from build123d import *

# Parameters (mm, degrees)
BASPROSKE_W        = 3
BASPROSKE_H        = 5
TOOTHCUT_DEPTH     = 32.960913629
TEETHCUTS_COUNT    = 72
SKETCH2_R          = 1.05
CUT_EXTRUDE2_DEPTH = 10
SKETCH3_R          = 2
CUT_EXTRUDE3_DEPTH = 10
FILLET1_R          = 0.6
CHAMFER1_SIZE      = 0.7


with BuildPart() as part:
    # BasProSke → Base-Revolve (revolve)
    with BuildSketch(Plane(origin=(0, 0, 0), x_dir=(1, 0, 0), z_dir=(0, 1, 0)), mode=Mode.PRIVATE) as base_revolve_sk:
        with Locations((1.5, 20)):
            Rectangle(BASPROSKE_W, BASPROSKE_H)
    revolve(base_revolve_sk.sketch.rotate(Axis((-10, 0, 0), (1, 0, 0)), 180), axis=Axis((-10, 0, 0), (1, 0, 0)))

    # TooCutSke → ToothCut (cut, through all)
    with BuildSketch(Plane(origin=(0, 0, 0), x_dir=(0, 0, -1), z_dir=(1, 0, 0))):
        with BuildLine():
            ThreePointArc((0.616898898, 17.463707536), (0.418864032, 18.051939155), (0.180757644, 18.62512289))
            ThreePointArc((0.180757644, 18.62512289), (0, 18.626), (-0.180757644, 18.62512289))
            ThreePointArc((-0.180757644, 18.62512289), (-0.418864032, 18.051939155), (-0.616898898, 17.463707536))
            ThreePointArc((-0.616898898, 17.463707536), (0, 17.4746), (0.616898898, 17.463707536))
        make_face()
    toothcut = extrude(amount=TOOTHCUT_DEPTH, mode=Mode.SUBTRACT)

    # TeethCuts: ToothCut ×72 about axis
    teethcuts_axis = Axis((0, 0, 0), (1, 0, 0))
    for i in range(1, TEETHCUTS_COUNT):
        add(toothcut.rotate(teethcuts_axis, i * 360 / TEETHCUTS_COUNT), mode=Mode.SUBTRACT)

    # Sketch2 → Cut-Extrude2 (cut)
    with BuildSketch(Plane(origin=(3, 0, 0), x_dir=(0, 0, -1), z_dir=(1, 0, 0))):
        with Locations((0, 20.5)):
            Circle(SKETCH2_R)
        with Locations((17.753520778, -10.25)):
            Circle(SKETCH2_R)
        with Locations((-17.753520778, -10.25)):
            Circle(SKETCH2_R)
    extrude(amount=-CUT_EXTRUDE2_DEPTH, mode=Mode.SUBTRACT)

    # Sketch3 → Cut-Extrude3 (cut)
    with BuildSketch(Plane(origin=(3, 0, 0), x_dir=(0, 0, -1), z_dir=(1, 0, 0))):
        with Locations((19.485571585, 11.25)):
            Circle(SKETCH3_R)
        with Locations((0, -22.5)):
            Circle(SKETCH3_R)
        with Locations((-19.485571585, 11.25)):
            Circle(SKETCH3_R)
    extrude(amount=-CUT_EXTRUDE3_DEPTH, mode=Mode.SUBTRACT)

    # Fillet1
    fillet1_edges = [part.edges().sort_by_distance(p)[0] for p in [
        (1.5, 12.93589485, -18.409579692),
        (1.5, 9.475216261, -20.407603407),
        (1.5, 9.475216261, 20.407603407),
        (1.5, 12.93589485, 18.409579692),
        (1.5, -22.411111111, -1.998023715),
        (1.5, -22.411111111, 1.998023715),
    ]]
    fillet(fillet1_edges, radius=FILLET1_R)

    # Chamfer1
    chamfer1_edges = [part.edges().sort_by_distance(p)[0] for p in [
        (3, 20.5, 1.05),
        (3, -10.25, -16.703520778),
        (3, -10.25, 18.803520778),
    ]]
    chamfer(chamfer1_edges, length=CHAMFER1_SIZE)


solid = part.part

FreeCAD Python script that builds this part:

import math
import FreeCAD as App
import Part
import Sketcher

V = App.Vector


def edges_at(feature, points):
    """Names of the edges that pass closest to the given points."""
    edges = feature.Shape.Edges
    near = lambda p: min(range(len(edges)), key=lambda i: edges[i].distToShape(Part.Vertex(*p))[0])
    return sorted({f"Edge{near(p) + 1}" for p in points})

doc = App.newDocument("Part")
body = doc.addObject("PartDesign::Body", "Body")

# Sketch on XZ plane
sketch1 = doc.addObject("Sketcher::SketchObject", "Sketch")
body.addObject(sketch1)
sketch1.AttachmentSupport = (doc.XZ_Plane, [""])
sketch1.MapMode = "FlatFace"
sketch1.addGeometry(Part.LineSegment(V(0, -22.5, 0), V(0, -17.5, 0)), False)
sketch1.addGeometry(Part.LineSegment(V(0, -17.5, 0), V(3, -17.5, 0)), False)
sketch1.addGeometry(Part.LineSegment(V(3, -17.5, 0), V(3, -22.5, 0)), False)
sketch1.addGeometry(Part.LineSegment(V(3, -22.5, 0), V(0, -22.5, 0)), False)
sketch1.addConstraint(Sketcher.Constraint("Coincident", 0, 2, 1, 1))
sketch1.addConstraint(Sketcher.Constraint("Coincident", 1, 2, 2, 1))
sketch1.addConstraint(Sketcher.Constraint("Coincident", 2, 2, 3, 1))
sketch1.addConstraint(Sketcher.Constraint("Coincident", 3, 2, 0, 1))
sketch1.addConstraint(Sketcher.Constraint("Vertical", 0))
sketch1.addConstraint(Sketcher.Constraint("Horizontal", 1))
sketch1.addConstraint(Sketcher.Constraint("Vertical", 2))
sketch1.addConstraint(Sketcher.Constraint("Horizontal", 3))
sketch1.addConstraint(Sketcher.Constraint("PointOnObject", 0, 2, -2))
sketch1.addConstraint(Sketcher.Constraint("DistanceX", 1, 1, 1, 2, 3.0))
sketch1.addConstraint(Sketcher.Constraint("DistanceY", 0, 1, 0, 2, 5.0))
sketch1.addConstraint(Sketcher.Constraint("DistanceY", 0, 2, -1, 1, 17.5))
revolution = doc.addObject("PartDesign::Revolution", "Revolution")
body.addObject(revolution)
revolution.Profile = sketch1
revolution.ReferenceAxis = (sketch1, ["H_Axis"])
revolution.Angle = 360

# Sketch on YZ plane
sketch2 = doc.addObject("Sketcher::SketchObject", "Sketch001")
body.addObject(sketch2)
sketch2.AttachmentSupport = (doc.YZ_Plane, [""])
sketch2.MapMode = "FlatFace"
sketch2.addGeometry(Part.ArcOfCircle(Part.Circle(V(14.887946, 8.006642, 0), V(0, 0, 1), 9), math.radians(-73.369662), math.radians(-65.465448)), False)
sketch2.addGeometry(Part.ArcOfCircle(Part.Circle(V(0.000004, 0, 0), V(0, 0, 1), 18.625996), math.radians(-0.556041), math.radians(0.556041)), False)
sketch2.addGeometry(Part.ArcOfCircle(Part.Circle(V(14.887946, -8.006642, 0), V(0, 0, 1), 9), math.radians(65.465448), math.radians(73.369662)), False)
sketch2.addGeometry(Part.ArcOfCircle(Part.Circle(V(0, 0, 0), V(0, 0, 1), 17.4746), math.radians(-2.023111), math.radians(2.023111)), False)
sketch2.addConstraint(Sketcher.Constraint("Coincident", 0, 2, 1, 1))
sketch2.addConstraint(Sketcher.Constraint("Coincident", 1, 2, 2, 1))
sketch2.addConstraint(Sketcher.Constraint("Coincident", 2, 2, 3, 2))
sketch2.addConstraint(Sketcher.Constraint("Coincident", 3, 1, 0, 1))
sketch2.addConstraint(Sketcher.Constraint("Coincident", 1, 3, -1, 1))
sketch2.addConstraint(Sketcher.Constraint("Coincident", 3, 3, -1, 1))
sketch2.addConstraint(Sketcher.Constraint("Equal", 0, 2))
sketch2.addConstraint(Sketcher.Constraint("Symmetric", 0, 3, 2, 3, -1))
sketch2.addConstraint(Sketcher.Constraint("Radius", 0, 9.0))
sketch2.addConstraint(Sketcher.Constraint("Radius", 3, 17.4746))
sketch2.addConstraint(Sketcher.Constraint("Radius", 1, 18.625996))
sketch2.addConstraint(Sketcher.Constraint("DistanceY", -1, 1, 2, 2, 0.616899))
sketch2.addConstraint(Sketcher.Constraint("DistanceY", 0, 2, 0, 3, 8.187399))
pocket1 = doc.addObject("PartDesign::Pocket", "Pocket")
body.addObject(pocket1)
pocket1.Profile = sketch2
pocket1.Type = "ThroughAll"
pocket1.Reversed = True
doc.recompute()

polarpattern = doc.addObject("PartDesign::PolarPattern", "PolarPattern")
body.addObject(polarpattern)
polarpattern.Originals = [pocket1]
polarpattern.Axis = (doc.X_Axis, [""])
polarpattern.Angle = 360
polarpattern.Occurrences = 72
body.Tip = polarpattern

# Sketch on YZ plane
sketch3 = doc.addObject("Sketcher::SketchObject", "Sketch002")
body.addObject(sketch3)
sketch3.AttachmentSupport = (doc.YZ_Plane, [""])
sketch3.MapMode = "FlatFace"
sketch3.AttachmentOffset = App.Placement(V(0, 0, 3), App.Rotation())
sketch3.addGeometry(Part.Circle(V(20.5, 0, 0), V(0, 0, 1), 1.05), False)
sketch3.addGeometry(Part.Circle(V(-10.25, -17.753521, 0), V(0, 0, 1), 1.05), False)
sketch3.addGeometry(Part.Circle(V(-10.25, 17.753521, 0), V(0, 0, 1), 1.05), False)
sketch3.addConstraint(Sketcher.Constraint("Equal", 0, 1))
sketch3.addConstraint(Sketcher.Constraint("Equal", 1, 2))
sketch3.addConstraint(Sketcher.Constraint("Symmetric", 1, 3, 2, 3, -1))
sketch3.addConstraint(Sketcher.Constraint("PointOnObject", 0, 3, -1))
sketch3.addConstraint(Sketcher.Constraint("Diameter", 0, 2.1))
sketch3.addConstraint(Sketcher.Constraint("DistanceX", -1, 1, 0, 3, 20.5))
sketch3.addConstraint(Sketcher.Constraint("DistanceX", 1, 3, -1, 1, 10.25))
sketch3.addConstraint(Sketcher.Constraint("DistanceY", 1, 3, -1, 1, 17.753521))
pocket2 = doc.addObject("PartDesign::Pocket", "Pocket001")
body.addObject(pocket2)
pocket2.Profile = sketch3
pocket2.Length = 10

# Sketch on YZ plane
sketch4 = doc.addObject("Sketcher::SketchObject", "Sketch003")
body.addObject(sketch4)
sketch4.AttachmentSupport = (doc.YZ_Plane, [""])
sketch4.MapMode = "FlatFace"
sketch4.AttachmentOffset = App.Placement(V(0, 0, 3), App.Rotation())
sketch4.addGeometry(Part.Circle(V(11.25, -19.485572, 0), V(0, 0, 1), 2), False)
sketch4.addGeometry(Part.Circle(V(-22.5, 0, 0), V(0, 0, 1), 2), False)
sketch4.addGeometry(Part.Circle(V(11.25, 19.485572, 0), V(0, 0, 1), 2), False)
sketch4.addConstraint(Sketcher.Constraint("Equal", 0, 1))
sketch4.addConstraint(Sketcher.Constraint("Equal", 1, 2))
sketch4.addConstraint(Sketcher.Constraint("Symmetric", 0, 3, 2, 3, -1))
sketch4.addConstraint(Sketcher.Constraint("PointOnObject", 1, 3, -1))
sketch4.addConstraint(Sketcher.Constraint("Diameter", 0, 4.0))
sketch4.addConstraint(Sketcher.Constraint("DistanceX", 1, 3, -1, 1, 22.5))
sketch4.addConstraint(Sketcher.Constraint("DistanceX", -1, 1, 0, 3, 11.25))
sketch4.addConstraint(Sketcher.Constraint("DistanceY", 0, 3, -1, 1, 19.485572))
pocket3 = doc.addObject("PartDesign::Pocket", "Pocket002")
body.addObject(pocket3)
pocket3.Profile = sketch4
pocket3.Length = 10
doc.recompute()

fillet = doc.addObject("PartDesign::Fillet", "Fillet")
body.addObject(fillet)
fillet.Base = (pocket3, edges_at(pocket3, [
    (1.5, 12.936, -18.41),
    (1.5, 9.475, -20.408),
    (1.5, 9.475, 20.408),
    (1.5, 12.936, 18.41),
    (1.5, -22.411, -1.998),
    (1.5, -22.411, 1.998),
]))
fillet.Radius = 0.6
doc.recompute()

chamfer = doc.addObject("PartDesign::Chamfer", "Chamfer")
body.addObject(chamfer)
chamfer.Base = (fillet, edges_at(fillet, [(3, 20.5, 1.05), (3, -10.25, -16.704), (3, -10.25, 18.804)]))
chamfer.Size = 0.7

doc.recompute()
